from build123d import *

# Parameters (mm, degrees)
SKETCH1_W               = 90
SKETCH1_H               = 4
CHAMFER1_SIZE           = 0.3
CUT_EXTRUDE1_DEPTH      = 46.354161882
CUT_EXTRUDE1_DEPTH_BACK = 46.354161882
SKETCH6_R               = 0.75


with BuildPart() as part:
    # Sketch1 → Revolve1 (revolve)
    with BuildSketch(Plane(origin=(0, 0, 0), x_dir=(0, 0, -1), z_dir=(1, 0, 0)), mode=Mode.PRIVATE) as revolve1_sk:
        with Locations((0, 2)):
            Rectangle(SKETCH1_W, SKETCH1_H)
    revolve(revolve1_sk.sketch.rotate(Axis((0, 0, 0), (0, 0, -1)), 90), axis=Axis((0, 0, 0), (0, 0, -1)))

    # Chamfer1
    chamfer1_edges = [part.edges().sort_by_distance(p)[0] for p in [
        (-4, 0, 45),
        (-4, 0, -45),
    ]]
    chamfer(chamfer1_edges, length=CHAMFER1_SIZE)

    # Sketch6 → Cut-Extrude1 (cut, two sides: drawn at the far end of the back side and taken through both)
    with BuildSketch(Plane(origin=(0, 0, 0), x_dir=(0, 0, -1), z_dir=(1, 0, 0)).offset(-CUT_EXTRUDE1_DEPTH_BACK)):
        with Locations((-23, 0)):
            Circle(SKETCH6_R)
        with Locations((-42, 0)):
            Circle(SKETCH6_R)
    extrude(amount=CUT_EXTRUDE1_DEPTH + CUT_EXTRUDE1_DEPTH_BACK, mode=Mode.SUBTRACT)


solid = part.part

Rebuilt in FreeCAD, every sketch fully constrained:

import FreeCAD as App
import Part
import Sketcher
from FreeCAD import Vector


def edges_at(feature, points):
    """Names of the edges that pass closest to the given points."""
    edges = feature.Shape.Edges
    near = lambda p: min(range(len(edges)), key=lambda i: edges[i].distToShape(Part.Vertex(*p))[0])
    return sorted({f"Edge{near(p) + 1}" for p in points})

doc = App.newDocument("Part")
body = doc.addObject("PartDesign::Body", "Body")

# Sketch on YZ plane
sketch1 = body.newObject("Sketcher::SketchObject", "Sketch")
sketch1.AttachmentSupport = (doc.getObject("YZ_Plane"), [""])
sketch1.MapMode = "FlatFace"
sketch1.addGeometry([
    Part.LineSegment(Vector(4, 45, 0), Vector(0, 45, 0)),
    Part.LineSegment(Vector(0, 45, 0), Vector(0, -45, 0)),
    Part.LineSegment(Vector(0, -45, 0), Vector(4, -45, 0)),
    Part.LineSegment(Vector(4, -45, 0), Vector(4, 45, 0)),
], False)
sketch1.addConstraint([
    Sketcher.Constraint("Coincident", 0, 2, 1, 1),
    Sketcher.Constraint("Coincident", 1, 2, 2, 1),
    Sketcher.Constraint("Coincident", 2, 2, 3, 1),
    Sketcher.Constraint("Coincident", 3, 2, 0, 1),
    Sketcher.Constraint("Horizontal", 0),
    Sketcher.Constraint("Vertical", 1),
    Sketcher.Constraint("Horizontal", 2),
    Sketcher.Constraint("Vertical", 3),
    Sketcher.Constraint("Symmetric", 0, 2, 1, 2, -1, 1),
    Sketcher.Constraint("DistanceX", 0, 2, 0, 1, 4.0),
    Sketcher.Constraint("DistanceY", 1, 2, 1, 1, 90.0),
])
revolution = body.newObject("PartDesign::Revolution", "Revolution")
revolution.Profile = sketch1
revolution.ReferenceAxis = (sketch1, ["V_Axis"])
revolution.Angle = 360
doc.recompute()

chamfer = body.newObject("PartDesign::Chamfer", "Chamfer")
chamfer.Base = (revolution, edges_at(revolution, [(-4, 0, 45), (-4, 0, -45)]))
chamfer.Size = 0.3

# Sketch on YZ plane
sketch2 = body.newObject("Sketcher::SketchObject", "Sketch001")
sketch2.AttachmentSupport = (doc.getObject("YZ_Plane"), [""])
sketch2.MapMode = "FlatFace"
sketch2.addGeometry([
    Part.Circle(Vector(0, 23, 0), Vector(0, 0, 1), 0.8),
    Part.Circle(Vector(0, 42, 0), Vector(0, 0, 1), 0.8),
], False)
sketch2.addConstraint([
    Sketcher.Constraint("Equal", 0, 1),
    Sketcher.Constraint("PointOnObject", 0, 3, -2),
    Sketcher.Constraint("PointOnObject", 1, 3, -2),
    Sketcher.Constraint("Diameter", 0, 1.5),
    Sketcher.Constraint("DistanceY", -1, 1, 0, 3, 23.0),
    Sketcher.Constraint("DistanceY", -1, 1, 1, 3, 42.0),
])
pocket1 = body.newObject("PartDesign::Pocket", "Pocket")
pocket1.Profile = sketch2
pocket1.Type = "ThroughAll"
pocket1.Midplane = True

doc.recompute()
